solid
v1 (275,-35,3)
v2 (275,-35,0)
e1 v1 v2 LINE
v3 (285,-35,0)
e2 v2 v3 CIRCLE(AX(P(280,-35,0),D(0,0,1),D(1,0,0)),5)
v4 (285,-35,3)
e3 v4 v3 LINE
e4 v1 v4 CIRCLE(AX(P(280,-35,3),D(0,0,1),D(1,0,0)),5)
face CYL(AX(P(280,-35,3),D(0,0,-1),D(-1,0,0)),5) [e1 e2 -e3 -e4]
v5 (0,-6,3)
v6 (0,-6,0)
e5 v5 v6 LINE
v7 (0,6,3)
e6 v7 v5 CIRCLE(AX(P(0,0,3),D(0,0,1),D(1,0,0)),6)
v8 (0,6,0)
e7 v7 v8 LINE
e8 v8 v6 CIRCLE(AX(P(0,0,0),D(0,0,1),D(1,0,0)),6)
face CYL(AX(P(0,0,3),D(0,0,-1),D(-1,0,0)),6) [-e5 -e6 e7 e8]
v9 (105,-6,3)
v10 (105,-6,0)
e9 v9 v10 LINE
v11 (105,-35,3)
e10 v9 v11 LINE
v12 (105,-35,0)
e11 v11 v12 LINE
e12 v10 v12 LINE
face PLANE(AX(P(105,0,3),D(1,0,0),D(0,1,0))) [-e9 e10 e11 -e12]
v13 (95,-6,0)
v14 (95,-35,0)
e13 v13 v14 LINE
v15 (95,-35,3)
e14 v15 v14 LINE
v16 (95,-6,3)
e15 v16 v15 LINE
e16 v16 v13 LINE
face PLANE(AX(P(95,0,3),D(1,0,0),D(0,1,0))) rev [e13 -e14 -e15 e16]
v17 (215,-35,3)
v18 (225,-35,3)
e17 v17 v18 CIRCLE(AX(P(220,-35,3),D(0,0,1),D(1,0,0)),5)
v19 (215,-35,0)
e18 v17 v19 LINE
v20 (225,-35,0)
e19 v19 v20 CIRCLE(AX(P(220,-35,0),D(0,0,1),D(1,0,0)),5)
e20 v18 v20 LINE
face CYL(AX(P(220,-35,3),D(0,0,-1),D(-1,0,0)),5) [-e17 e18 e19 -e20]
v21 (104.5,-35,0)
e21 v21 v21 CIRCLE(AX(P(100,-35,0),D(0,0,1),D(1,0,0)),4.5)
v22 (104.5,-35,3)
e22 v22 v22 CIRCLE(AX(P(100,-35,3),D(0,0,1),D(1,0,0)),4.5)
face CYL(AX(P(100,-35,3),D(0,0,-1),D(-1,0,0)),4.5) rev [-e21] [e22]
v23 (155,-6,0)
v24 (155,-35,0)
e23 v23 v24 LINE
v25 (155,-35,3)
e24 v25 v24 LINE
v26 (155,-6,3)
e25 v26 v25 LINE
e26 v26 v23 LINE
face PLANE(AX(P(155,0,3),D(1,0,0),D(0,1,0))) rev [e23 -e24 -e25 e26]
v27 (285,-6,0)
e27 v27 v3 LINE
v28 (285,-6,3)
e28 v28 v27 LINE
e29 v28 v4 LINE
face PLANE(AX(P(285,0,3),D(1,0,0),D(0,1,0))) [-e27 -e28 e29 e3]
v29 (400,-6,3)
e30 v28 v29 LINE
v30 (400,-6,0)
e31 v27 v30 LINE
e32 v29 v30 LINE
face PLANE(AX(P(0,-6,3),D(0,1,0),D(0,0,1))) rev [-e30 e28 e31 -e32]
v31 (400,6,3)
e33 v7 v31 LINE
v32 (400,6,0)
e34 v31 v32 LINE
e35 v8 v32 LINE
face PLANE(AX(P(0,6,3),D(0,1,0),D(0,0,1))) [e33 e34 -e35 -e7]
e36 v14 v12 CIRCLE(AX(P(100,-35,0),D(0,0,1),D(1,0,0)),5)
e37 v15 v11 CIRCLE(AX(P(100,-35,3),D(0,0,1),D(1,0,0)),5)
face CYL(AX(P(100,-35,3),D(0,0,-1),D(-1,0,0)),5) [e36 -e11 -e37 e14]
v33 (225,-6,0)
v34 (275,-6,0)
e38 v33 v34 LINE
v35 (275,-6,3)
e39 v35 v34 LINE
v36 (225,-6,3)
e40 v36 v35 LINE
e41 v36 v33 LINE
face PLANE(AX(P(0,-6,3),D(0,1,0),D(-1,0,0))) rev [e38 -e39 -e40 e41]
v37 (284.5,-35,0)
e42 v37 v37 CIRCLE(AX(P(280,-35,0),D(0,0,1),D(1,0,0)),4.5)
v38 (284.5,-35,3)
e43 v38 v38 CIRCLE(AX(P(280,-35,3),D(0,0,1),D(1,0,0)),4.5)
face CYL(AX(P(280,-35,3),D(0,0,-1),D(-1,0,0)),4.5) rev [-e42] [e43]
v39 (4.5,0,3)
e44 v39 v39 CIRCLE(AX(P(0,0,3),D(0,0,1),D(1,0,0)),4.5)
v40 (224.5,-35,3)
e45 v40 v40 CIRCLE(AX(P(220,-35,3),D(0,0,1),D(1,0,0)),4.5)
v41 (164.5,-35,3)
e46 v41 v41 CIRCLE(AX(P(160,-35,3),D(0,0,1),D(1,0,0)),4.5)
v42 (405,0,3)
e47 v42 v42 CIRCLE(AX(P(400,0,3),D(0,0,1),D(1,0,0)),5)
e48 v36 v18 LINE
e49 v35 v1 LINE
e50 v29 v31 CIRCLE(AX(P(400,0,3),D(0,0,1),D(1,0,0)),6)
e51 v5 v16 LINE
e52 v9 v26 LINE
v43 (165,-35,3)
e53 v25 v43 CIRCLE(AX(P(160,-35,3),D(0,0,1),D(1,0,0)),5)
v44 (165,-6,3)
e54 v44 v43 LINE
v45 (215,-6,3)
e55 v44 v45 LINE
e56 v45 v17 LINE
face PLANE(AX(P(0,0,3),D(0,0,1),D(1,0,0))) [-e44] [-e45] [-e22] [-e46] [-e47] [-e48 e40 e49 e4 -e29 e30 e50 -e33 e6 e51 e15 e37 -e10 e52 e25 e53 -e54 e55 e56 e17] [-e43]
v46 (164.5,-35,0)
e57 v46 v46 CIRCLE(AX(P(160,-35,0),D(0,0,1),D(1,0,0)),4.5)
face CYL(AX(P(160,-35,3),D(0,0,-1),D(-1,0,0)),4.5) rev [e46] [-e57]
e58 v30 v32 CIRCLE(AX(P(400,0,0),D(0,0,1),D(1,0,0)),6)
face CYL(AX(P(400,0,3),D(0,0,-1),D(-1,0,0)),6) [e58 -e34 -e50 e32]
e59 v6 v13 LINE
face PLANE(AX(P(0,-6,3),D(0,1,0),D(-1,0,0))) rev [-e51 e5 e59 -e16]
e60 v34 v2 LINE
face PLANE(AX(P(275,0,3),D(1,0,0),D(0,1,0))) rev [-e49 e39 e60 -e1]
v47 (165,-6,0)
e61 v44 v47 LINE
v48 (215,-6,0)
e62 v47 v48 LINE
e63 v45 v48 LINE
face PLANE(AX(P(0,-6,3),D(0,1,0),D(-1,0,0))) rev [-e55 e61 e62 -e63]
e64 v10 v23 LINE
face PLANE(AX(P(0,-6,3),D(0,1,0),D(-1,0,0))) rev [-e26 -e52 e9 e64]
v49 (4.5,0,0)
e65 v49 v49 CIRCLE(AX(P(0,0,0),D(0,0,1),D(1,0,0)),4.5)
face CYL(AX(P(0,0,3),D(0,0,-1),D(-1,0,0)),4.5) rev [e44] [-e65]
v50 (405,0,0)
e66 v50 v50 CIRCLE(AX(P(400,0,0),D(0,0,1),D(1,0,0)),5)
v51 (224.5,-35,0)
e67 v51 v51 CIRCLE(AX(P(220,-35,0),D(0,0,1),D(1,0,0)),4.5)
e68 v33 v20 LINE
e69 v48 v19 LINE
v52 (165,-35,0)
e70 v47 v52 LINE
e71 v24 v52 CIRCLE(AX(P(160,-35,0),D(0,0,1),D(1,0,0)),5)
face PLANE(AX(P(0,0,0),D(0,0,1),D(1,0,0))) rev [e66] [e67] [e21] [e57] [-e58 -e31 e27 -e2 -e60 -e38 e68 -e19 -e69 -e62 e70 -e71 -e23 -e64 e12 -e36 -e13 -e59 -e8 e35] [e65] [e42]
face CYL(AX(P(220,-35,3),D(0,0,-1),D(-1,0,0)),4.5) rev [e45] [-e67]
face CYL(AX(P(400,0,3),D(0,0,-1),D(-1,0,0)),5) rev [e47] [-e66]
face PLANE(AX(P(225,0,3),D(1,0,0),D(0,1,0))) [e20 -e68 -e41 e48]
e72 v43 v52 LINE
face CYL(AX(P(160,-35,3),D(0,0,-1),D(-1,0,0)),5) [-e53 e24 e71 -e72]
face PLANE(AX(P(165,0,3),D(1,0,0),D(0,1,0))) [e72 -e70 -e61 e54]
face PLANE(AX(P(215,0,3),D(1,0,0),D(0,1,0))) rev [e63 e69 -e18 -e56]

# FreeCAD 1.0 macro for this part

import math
import FreeCAD as App
import Part
import Sketcher

V = App.Vector

doc = App.newDocument("Part")
body = doc.addObject("PartDesign::Body", "Body")

sketch1 = body.newObject("Sketcher::SketchObject", "Sketch")
sketch1.AttachmentSupport = (doc.getObject("XY_Plane"), [""])
sketch1.MapMode = "FlatFace"
sketch1.addGeometry([
    Part.LineSegment(V(400, 6, 0), V(0, 6, 0)),
    Part.ArcOfCircle(Part.Circle(V(0, 0, 0), V(0, 0, 1), 6), math.radians(90), math.radians(270)),
    Part.LineSegment(V(0, -6, 0), V(95, -6, 0)),
    Part.LineSegment(V(95, -6, 0), V(95, -35, 0)),
    Part.ArcOfCircle(Part.Circle(V(100, -35, 0), V(0, 0, 1), 5), math.radians(180), math.radians(360)),
    Part.LineSegment(V(105, -35, 0), V(105, -6, 0)),
    Part.LineSegment(V(105, -6, 0), V(155, -6, 0)),
    Part.LineSegment(V(155, -6, 0), V(155, -35, 0)),
    Part.ArcOfCircle(Part.Circle(V(160, -35, 0), V(0, 0, 1), 5), math.radians(180), math.radians(360)),
    Part.LineSegment(V(165, -35, 0), V(165, -6, 0)),
    Part.LineSegment(V(165, -6, 0), V(215, -6, 0)),
    Part.LineSegment(V(215, -6, 0), V(215, -35, 0)),
    Part.ArcOfCircle(Part.Circle(V(220, -35, 0), V(0, 0, 1), 5), math.radians(180), math.radians(360)),
    Part.LineSegment(V(225, -35, 0), V(225, -6, 0)),
    Part.LineSegment(V(225, -6, 0), V(275, -6, 0)),
    Part.LineSegment(V(275, -6, 0), V(275, -35, 0)),
    Part.ArcOfCircle(Part.Circle(V(280, -35, 0), V(0, 0, 1), 5), math.radians(180), math.radians(360)),
    Part.LineSegment(V(285, -35, 0), V(285, -6, 0)),
    Part.LineSegment(V(285, -6, 0), V(400, -6, 0)),
    Part.ArcOfCircle(Part.Circle(V(400, 0, 0), V(0, 0, 1), 6), math.radians(-90), math.radians(90)),
    Part.Circle(V(100, -35, 0), V(0, 0, 1), 4.5),
    Part.Circle(V(160, -35, 0), V(0, 0, 1), 4.5),
    Part.Circle(V(220, -35, 0), V(0, 0, 1), 4.5),
    Part.Circle(V(280, -35, 0), V(0, 0, 1), 4.5),
    Part.Circle(V(0, 0, 0), V(0, 0, 1), 4.5),
    Part.Circle(V(400, 0, 0), V(0, 0, 1), 5),
], False)
sketch1.addConstraint([
    Sketcher.Constraint("Tangent", 0, 2, 1, 1),
    Sketcher.Constraint("Tangent", 1, 2, 2, 1),
    Sketcher.Constraint("Coincident", 2, 2, 3, 1),
    Sketcher.Constraint("Tangent", 3, 2, 4, 1),
    Sketcher.Constraint("Tangent", 4, 2, 5, 1),
    Sketcher.Constraint("Coincident", 5, 2, 6, 1),
    Sketcher.Constraint("Coincident", 6, 2, 7, 1),
    Sketcher.Constraint("Tangent", 7, 2, 8, 1),
    Sketcher.Constraint("Tangent", 8, 2, 9, 1),
    Sketcher.Constraint("Coincident", 9, 2, 10, 1),
    Sketcher.Constraint("Coincident", 10, 2, 11, 1),
    Sketcher.Constraint("Tangent", 11, 2, 12, 1),
    Sketcher.Constraint("Tangent", 12, 2, 13, 1),
    Sketcher.Constraint("Coincident", 13, 2, 14, 1),
    Sketcher.Constraint("Coincident", 14, 2, 15, 1),
    Sketcher.Constraint("Tangent", 15, 2, 16, 1),
    Sketcher.Constraint("Tangent", 16, 2, 17, 1),
    Sketcher.Constraint("Coincident", 17, 2, 18, 1),
    Sketcher.Constraint("Tangent", 18, 2, 19, 1),
    Sketcher.Constraint("Tangent", 19, 2, 0, 1),
    Sketcher.Constraint("Horizontal", 0),
    Sketcher.Constraint("Horizontal", 2),
    Sketcher.Constraint("Vertical", 3),
    Sketcher.Constraint("Vertical", 5),
    Sketcher.Constraint("Horizontal", 6),
    Sketcher.Constraint("Vertical", 7),
    Sketcher.Constraint("Vertical", 9),
    Sketcher.Constraint("Horizontal", 10),
    Sketcher.Constraint("Vertical", 11),
    Sketcher.Constraint("Vertical", 13),
    Sketcher.Constraint("Horizontal", 14),
    Sketcher.Constraint("Vertical", 15),
    Sketcher.Constraint("Vertical", 17),
    Sketcher.Constraint("Horizontal", 18),
    Sketcher.Constraint("Coincident", 1, 3, -1, 1),
    Sketcher.Constraint("Coincident", 24, 3, -1, 1),
    Sketcher.Constraint("Coincident", 20, 3, 4, 3),
    Sketcher.Constraint("Coincident", 21, 3, 8, 3),
    Sketcher.Constraint("Coincident", 22, 3, 12, 3),
    Sketcher.Constraint("Coincident", 23, 3, 16, 3),
    Sketcher.Constraint("Coincident", 25, 3, 19, 3),
    Sketcher.Constraint("Equal", 4, 8),
    Sketcher.Constraint("Equal", 8, 12),
    Sketcher.Constraint("Equal", 12, 16),
    Sketcher.Constraint("Equal", 1, 19),
    Sketcher.Constraint("Equal", 20, 21),
    Sketcher.Constraint("Equal", 21, 22),
    Sketcher.Constraint("Equal", 22, 23),
    Sketcher.Constraint("Equal", 23, 24),
    Sketcher.Constraint("Equal", 16, 25),
    Sketcher.Constraint("Horizontal", 4, 3, 8, 3),
    Sketcher.Constraint("Horizontal", 8, 3, 12, 3),
    Sketcher.Constraint("Horizontal", 12, 3, 16, 3),
    Sketcher.Constraint("Horizontal", 2, 2, 5, 2),
    Sketcher.Constraint("Horizontal", 6, 2, 9, 2),
    Sketcher.Constraint("Horizontal", 10, 2, 13, 2),
    Sketcher.Constraint("Equal", 6, 10),
    Sketcher.Constraint("Equal", 10, 14),
    Sketcher.Constraint("Diameter", 20, 9.0),
    Sketcher.Constraint("Diameter", 25, 10.0),
    Sketcher.Constraint("Radius", 1, 6.0),
    Sketcher.Constraint("DistanceX", 0, 2, 0, 1, 400.0),
    Sketcher.Constraint("DistanceX", 2, 1, 2, 2, 95.0),
    Sketcher.Constraint("DistanceX", 6, 1, 6, 2, 50.0),
    Sketcher.Constraint("DistanceY", 3, 2, 3, 1, 29.0),
])
pad1 = body.newObject("PartDesign::Pad", "Pad")
pad1.Profile = sketch1
pad1.Length = 3

doc.recompute()
